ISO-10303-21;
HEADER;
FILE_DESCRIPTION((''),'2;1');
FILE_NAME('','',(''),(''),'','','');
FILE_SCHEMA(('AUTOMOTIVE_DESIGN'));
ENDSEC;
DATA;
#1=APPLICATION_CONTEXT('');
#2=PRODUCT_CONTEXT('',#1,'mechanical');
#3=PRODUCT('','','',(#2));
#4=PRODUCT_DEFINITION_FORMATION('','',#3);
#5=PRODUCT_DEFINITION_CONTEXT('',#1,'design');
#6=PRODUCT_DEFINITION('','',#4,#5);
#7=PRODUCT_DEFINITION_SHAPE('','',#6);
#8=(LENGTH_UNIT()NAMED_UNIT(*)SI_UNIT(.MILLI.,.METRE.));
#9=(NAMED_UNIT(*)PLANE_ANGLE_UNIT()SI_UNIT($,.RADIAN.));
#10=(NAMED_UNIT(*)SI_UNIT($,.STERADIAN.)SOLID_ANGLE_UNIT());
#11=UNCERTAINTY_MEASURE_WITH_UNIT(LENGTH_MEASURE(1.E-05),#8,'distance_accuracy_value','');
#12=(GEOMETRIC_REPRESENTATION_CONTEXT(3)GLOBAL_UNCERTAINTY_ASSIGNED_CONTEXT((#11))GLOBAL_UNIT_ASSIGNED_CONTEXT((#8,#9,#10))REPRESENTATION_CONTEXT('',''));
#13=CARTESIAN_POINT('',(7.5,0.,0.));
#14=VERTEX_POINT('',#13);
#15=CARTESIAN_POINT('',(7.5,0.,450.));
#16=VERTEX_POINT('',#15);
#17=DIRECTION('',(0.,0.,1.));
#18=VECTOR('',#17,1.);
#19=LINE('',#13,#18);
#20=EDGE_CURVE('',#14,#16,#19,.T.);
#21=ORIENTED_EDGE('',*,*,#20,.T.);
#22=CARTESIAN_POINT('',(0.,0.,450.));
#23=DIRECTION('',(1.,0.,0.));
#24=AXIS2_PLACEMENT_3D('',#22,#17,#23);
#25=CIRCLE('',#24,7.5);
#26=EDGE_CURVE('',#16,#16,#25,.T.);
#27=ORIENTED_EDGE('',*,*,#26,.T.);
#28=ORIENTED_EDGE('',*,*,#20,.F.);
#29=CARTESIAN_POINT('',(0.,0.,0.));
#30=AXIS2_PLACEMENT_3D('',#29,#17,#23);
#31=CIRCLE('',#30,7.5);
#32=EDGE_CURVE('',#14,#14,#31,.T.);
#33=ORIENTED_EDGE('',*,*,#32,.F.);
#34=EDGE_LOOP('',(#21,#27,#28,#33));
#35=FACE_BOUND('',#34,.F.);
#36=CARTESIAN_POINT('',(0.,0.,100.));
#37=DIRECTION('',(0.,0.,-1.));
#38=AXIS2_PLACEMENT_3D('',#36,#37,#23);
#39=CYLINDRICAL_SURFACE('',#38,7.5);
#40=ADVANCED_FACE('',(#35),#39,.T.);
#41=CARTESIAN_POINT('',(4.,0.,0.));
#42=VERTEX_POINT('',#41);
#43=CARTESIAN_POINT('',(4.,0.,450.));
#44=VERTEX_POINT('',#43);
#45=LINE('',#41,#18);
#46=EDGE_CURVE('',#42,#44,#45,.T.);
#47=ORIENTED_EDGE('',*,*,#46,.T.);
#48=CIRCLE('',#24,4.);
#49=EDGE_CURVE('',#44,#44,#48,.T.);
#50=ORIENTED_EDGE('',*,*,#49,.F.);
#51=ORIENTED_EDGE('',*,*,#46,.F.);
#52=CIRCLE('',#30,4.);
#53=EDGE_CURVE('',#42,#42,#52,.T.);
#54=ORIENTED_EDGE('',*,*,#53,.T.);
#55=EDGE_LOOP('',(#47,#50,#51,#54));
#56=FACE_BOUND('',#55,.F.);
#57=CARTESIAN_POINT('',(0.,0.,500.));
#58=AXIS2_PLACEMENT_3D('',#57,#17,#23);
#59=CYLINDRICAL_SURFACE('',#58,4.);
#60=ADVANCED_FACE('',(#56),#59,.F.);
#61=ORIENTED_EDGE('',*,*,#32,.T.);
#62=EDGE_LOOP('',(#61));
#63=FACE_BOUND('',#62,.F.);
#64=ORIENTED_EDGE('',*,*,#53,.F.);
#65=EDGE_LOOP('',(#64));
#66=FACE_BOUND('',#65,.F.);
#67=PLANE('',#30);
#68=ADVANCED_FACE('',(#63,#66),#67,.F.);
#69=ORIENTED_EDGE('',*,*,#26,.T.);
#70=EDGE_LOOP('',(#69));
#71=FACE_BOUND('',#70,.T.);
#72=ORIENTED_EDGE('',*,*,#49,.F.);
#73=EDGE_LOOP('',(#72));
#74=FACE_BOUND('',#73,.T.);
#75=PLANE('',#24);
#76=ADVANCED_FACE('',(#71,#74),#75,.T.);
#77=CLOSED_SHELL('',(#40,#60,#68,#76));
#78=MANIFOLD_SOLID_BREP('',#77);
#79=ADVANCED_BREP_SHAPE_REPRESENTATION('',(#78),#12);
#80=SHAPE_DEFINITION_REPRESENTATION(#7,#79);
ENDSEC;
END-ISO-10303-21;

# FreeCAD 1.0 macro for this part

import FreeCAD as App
import Part
import Sketcher
Q = App.Units.Quantity

doc = App.newDocument("Part")
body = doc.addObject("PartDesign::Body", "Body")

# Sketch on XY plane
sketch1 = body.newObject("Sketcher::SketchObject", "Sketch")
sketch1.AttachmentSupport = (doc.getObject("XY_Plane"), [""])
sketch1.MapMode = "FlatFace"
sketch1.addGeometry(Part.Circle(App.Vector(0, 0, 0), App.Vector(0, 0, 1), 8), False)
sketch1.addConstraint([
    Sketcher.Constraint("Coincident", 0, 3, -1, 1),
    Sketcher.Constraint("Diameter", 0, Q("15 mm")),
])
pad1 = body.newObject("PartDesign::Pad", "Pad")
pad1.Profile = sketch1
pad1.Length = 100

# Sketch on XY plane
sketch2 = body.newObject("Sketcher::SketchObject", "Sketch001")
sketch2.AttachmentSupport = (doc.getObject("XY_Plane"), [""])
sketch2.MapMode = "FlatFace"
sketch2.AttachmentOffset = App.Placement(App.Vector(0, 0, 100), App.Rotation())
sketch2.addGeometry(Part.Circle(App.Vector(0, 0, 0), App.Vector(0, 0, 1), 4), False)
sketch2.addConstraint([
    Sketcher.Constraint("Coincident", 0, 3, -1, 1),
    Sketcher.Constraint("Diameter", 0, Q("8 mm")),
])
pocket1 = body.newObject("PartDesign::Pocket", "Pocket")
pocket1.Profile = sketch2
pocket1.Length = 100

# Sketch on XY plane
sketch3 = body.newObject("Sketcher::SketchObject", "Sketch002")
sketch3.AttachmentSupport = (doc.getObject("XY_Plane"), [""])
sketch3.MapMode = "FlatFace"
sketch3.AttachmentOffset = App.Placement(App.Vector(0, 0, 100), App.Rotation())
sketch3.addGeometry(Part.Circle(App.Vector(0, 0, 0), App.Vector(0, 0, 1), 8), False)
sketch3.addConstraint([
    Sketcher.Constraint("Coincident", 0, 3, -1, 1),
    Sketcher.Constraint("Diameter", 0, Q("15 mm")),
])
pad2 = body.newObject("PartDesign::Pad", "Pad001")
pad2.Profile = sketch3
pad2.Length = 400

# Sketch on XY plane
sketch4 = body.newObject("Sketcher::SketchObject", "Sketch003")
sketch4.AttachmentSupport = (doc.getObject("XY_Plane"), [""])
sketch4.MapMode = "FlatFace"
sketch4.AttachmentOffset = App.Placement(App.Vector(0, 0, 500), App.Rotation())
sketch4.addGeometry(Part.Circle(App.Vector(0, 0, 0), App.Vector(0, 0, 1), 4), False)
sketch4.addConstraint([
    Sketcher.Constraint("Coincident", 0, 3, -1, 1),
    Sketcher.Constraint("Diameter", 0, Q("8 mm")),
])
pocket2 = body.newObject("PartDesign::Pocket", "Pocket001")
pocket2.Profile = sketch4
pocket2.Length = 400

# Sketch on XY plane
sketch5 = body.newObject("Sketcher::SketchObject", "Sketch004")
sketch5.AttachmentSupport = (doc.getObject("XY_Plane"), [""])
sketch5.MapMode = "FlatFace"
sketch5.AttachmentOffset = App.Placement(App.Vector(0, 0, 500), App.Rotation())
sketch5.addGeometry(Part.Circle(App.Vector(0, 0, 0), App.Vector(0, 0, 1), 8), False)
sketch5.addConstraint([
    Sketcher.Constraint("Coincident", 0, 3, -1, 1),
    Sketcher.Constraint("Diameter", 0, Q("15 mm")),
])
pocket3 = body.newObject("PartDesign::Pocket", "Pocket002")
pocket3.Profile = sketch5
pocket3.Length = 50

doc.recompute()
